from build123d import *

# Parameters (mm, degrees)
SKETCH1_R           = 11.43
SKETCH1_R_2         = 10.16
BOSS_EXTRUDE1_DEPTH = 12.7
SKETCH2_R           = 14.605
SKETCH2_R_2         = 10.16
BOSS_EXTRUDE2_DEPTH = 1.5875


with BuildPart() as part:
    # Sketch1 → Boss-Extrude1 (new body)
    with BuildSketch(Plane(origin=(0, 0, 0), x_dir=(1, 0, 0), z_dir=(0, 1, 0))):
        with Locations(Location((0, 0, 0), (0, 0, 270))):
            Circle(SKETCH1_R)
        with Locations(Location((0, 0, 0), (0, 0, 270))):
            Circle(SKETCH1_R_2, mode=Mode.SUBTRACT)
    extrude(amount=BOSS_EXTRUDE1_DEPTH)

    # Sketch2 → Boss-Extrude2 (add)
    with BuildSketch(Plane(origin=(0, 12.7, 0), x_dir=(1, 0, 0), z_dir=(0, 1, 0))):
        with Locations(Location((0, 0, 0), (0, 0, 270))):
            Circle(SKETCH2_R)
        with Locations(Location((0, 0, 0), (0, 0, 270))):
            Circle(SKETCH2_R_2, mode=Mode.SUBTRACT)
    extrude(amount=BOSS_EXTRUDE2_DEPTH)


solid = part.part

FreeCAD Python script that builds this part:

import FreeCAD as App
import Part
import Sketcher
Q = App.Units.Quantity

doc = App.newDocument("Part")
body = doc.addObject("PartDesign::Body", "Body")

# Sketch on XZ plane
sketch1 = body.newObject("Sketcher::SketchObject", "Sketch")
sketch1.AttachmentSupport = (doc.getObject("XZ_Plane"), [""])
sketch1.MapMode = "FlatFace"
sketch1.addGeometry([
    Part.Circle(App.Vector(0, 0, 0), App.Vector(0, 0, 1), 11.43),
    Part.Circle(App.Vector(0, 0, 0), App.Vector(0, 0, 1), 10.16),
], False)
sketch1.addConstraint([
    Sketcher.Constraint("Coincident", 0, 3, -1, 1),
    Sketcher.Constraint("Coincident", 1, 3, -1, 1),
    Sketcher.Constraint("Diameter", 0, Q("0.9 in")),
    Sketcher.Constraint("Diameter", 1, Q("0.8 in")),
])
pad1 = body.newObject("PartDesign::Pad", "Pad")
pad1.Profile = sketch1
pad1.Length = Q("0.5 in")
pad1.Reversed = True

# Sketch on XZ plane
sketch2 = body.newObject("Sketcher::SketchObject", "Sketch001")
sketch2.AttachmentSupport = (doc.getObject("XZ_Plane"), [""])
sketch2.MapMode = "FlatFace"
sketch2.AttachmentOffset = App.Placement(App.Vector(0, 0, -0.5 * 25.4), App.Rotation())
sketch2.addGeometry([
    Part.Circle(App.Vector(0, 0, 0), App.Vector(0, 0, 1), 14.605),
    Part.Circle(App.Vector(0, 0, 0), App.Vector(0, 0, 1), 10.16),
], False)
sketch2.addConstraint([
    Sketcher.Constraint("Coincident", 0, 3, -1, 1),
    Sketcher.Constraint("Coincident", 1, 3, -1, 1),
    Sketcher.Constraint("Diameter", 1, Q("0.8 in")),
    Sketcher.Constraint("Diameter", 0, Q("1.15 in")),
])
pad2 = body.newObject("PartDesign::Pad", "Pad001")
pad2.Profile = sketch2
pad2.Length = Q("0.0625 in")
pad2.Reversed = True

doc.recompute()
